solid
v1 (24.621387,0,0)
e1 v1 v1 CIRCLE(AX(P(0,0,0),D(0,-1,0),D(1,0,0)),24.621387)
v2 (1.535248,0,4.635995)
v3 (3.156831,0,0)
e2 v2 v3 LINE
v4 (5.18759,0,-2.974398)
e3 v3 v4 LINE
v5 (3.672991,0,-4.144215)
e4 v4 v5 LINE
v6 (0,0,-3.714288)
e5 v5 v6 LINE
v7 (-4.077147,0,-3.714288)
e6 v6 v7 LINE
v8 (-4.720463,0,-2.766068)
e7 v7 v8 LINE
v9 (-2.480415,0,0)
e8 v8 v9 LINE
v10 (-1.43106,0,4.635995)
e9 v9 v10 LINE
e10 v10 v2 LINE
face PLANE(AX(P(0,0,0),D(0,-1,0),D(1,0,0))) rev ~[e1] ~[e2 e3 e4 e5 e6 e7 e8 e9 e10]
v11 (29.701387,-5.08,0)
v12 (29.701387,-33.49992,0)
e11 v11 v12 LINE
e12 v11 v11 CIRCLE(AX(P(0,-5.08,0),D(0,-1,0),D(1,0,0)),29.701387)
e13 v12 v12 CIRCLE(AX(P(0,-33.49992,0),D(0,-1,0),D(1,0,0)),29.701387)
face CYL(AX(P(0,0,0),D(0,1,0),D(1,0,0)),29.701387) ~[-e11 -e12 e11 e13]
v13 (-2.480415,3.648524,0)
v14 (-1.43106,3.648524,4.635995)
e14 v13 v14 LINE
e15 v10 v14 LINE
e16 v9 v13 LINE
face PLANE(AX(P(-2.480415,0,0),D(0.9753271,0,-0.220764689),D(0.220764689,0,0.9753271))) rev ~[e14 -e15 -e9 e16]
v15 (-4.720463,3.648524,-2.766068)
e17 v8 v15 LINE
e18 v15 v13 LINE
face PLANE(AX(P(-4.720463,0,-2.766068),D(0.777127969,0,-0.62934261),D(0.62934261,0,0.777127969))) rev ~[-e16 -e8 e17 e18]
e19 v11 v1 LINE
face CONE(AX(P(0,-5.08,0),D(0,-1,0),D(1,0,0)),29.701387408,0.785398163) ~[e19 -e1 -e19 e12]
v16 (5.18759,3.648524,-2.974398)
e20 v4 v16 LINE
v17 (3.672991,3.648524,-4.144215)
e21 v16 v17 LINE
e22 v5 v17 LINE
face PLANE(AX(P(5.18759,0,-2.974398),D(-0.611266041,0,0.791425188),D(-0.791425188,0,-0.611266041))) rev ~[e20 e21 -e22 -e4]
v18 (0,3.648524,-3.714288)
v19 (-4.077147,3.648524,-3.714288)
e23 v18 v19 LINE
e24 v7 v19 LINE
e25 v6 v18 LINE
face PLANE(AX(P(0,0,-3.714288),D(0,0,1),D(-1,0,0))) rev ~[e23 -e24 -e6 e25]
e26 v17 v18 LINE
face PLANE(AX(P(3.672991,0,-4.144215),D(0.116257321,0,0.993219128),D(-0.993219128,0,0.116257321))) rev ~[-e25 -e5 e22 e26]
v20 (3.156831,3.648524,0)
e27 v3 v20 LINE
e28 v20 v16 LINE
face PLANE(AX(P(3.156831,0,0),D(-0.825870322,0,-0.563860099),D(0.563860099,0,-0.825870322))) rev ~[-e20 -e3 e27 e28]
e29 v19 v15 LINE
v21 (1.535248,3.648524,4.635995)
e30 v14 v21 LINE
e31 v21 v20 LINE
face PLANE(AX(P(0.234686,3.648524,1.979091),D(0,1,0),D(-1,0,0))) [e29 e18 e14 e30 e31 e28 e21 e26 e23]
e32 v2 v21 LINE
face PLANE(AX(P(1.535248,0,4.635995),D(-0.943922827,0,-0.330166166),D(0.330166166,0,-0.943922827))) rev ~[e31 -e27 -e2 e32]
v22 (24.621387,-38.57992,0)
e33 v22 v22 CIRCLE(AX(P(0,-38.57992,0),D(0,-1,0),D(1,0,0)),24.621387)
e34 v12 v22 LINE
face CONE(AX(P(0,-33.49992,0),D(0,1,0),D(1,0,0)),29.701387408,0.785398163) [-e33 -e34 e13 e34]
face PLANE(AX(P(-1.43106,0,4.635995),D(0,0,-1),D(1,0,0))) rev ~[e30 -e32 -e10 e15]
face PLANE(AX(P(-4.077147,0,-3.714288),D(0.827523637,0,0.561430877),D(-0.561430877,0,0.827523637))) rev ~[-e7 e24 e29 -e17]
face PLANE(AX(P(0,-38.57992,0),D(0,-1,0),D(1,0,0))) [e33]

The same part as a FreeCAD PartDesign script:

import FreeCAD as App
import Part
import Sketcher

V = App.Vector
Q = App.Units.Quantity

doc = App.newDocument("Part")
params = doc.addObject("Spreadsheet::Sheet", "Params")
for row, (alias, value) in enumerate([
    ("pad1_length", "38.57992 mm"),
    ("chamfer_size", "0.2 in"),
    ("pad2_length", "28.350525 mm"),
    ("pad3_length", "3.648524 mm"),
], start=1):
    params.set(f"A{row}", alias)
    params.set(f"B{row}", "=" + value)
    params.setAlias(f"B{row}", alias)

body = doc.addObject("PartDesign::Body", "Body")

# Sketch on XZ plane
sketch1 = body.newObject("Sketcher::SketchObject", "Sketch")
sketch1.AttachmentSupport = (doc.getObject("XZ_Plane"), [""])
sketch1.MapMode = "FlatFace"
sketch1.addGeometry(Part.Circle(V(0, 0, 0), V(0, 0, 1), 30), False)
sketch1.addConstraint(Sketcher.Constraint("Coincident", 0, 3, -1, 1))
sketch1.addConstraint(Sketcher.Constraint("Diameter", 0, Q("59.402775 mm")))
pad1 = body.newObject("PartDesign::Pad", "Pad")
pad1.Profile = sketch1
pad1.setExpression("Length", "Params.pad1_length")
doc.recompute()

chamfer = body.newObject("PartDesign::Chamfer", "Chamfer")
chamfer.Base = (pad1, ["Edge1"])
chamfer.UseAllEdges = True
chamfer.setExpression("Size", "Params.chamfer_size")

# Sketch on XZ plane
sketch2 = body.newObject("Sketcher::SketchObject", "Sketch001")
sketch2.AttachmentSupport = (doc.getObject("XZ_Plane"), [""])
sketch2.MapMode = "FlatFace"
sketch2.AttachmentOffset = App.Placement(V(0, 0, 38.57992), App.Rotation())
sketch2.addGeometry(Part.Circle(V(0, 0, 0), V(0, 0, 1), 21), False)
sketch2.addGeometry(Part.Circle(V(0, 0, 0), V(0, 0, 1), 18), False)
sketch2.addConstraint(Sketcher.Constraint("Coincident", 0, 3, -1, 1))
sketch2.addConstraint(Sketcher.Constraint("Coincident", 1, 3, -1, 1))
sketch2.addConstraint(Sketcher.Constraint("Diameter", 1, Q("35.210779 mm")))
sketch2.addConstraint(Sketcher.Constraint("Diameter", 0, Q("41.740063 mm")))
pad2 = body.newObject("PartDesign::Pad", "Pad001")
pad2.Profile = sketch2
pad2.setExpression("Length", "Params.pad2_length")
pad2.Reversed = True

# Sketch on XZ plane
sketch3 = body.newObject("Sketcher::SketchObject", "Sketch002")
sketch3.AttachmentSupport = (doc.getObject("XZ_Plane"), [""])
sketch3.MapMode = "FlatFace"
sketch3.addGeometry(Part.LineSegment(V(-2.5, 0, 0), V(-1.4, 4.6, 0)), False)
sketch3.addGeometry(Part.LineSegment(V(-1.4, 4.6, 0), V(1.5, 4.6, 0)), False)
sketch3.addGeometry(Part.LineSegment(V(1.5, 4.6, 0), V(3.2, 0, 0)), False)
sketch3.addGeometry(Part.LineSegment(V(3.2, 0, 0), V(5.2, -3, 0)), False)
sketch3.addGeometry(Part.LineSegment(V(5.2, -3, 0), V(3.7, -4.1, 0)), False)
sketch3.addGeometry(Part.LineSegment(V(3.7, -4.1, 0), V(0, -3.7, 0)), False)
sketch3.addGeometry(Part.LineSegment(V(0, -3.7, 0), V(-4.1, -3.7, 0)), False)
sketch3.addGeometry(Part.LineSegment(V(-4.1, -3.7, 0), V(-4.7, -2.8, 0)), False)
sketch3.addGeometry(Part.LineSegment(V(-4.7, -2.8, 0), V(-2.5, 0, 0)), False)
sketch3.addConstraint(Sketcher.Constraint("Coincident", 0, 2, 1, 1))
sketch3.addConstraint(Sketcher.Constraint("Coincident", 1, 2, 2, 1))
sketch3.addConstraint(Sketcher.Constraint("Coincident", 2, 2, 3, 1))
sketch3.addConstraint(Sketcher.Constraint("Coincident", 3, 2, 4, 1))
sketch3.addConstraint(Sketcher.Constraint("Coincident", 4, 2, 5, 1))
sketch3.addConstraint(Sketcher.Constraint("Coincident", 5, 2, 6, 1))
sketch3.addConstraint(Sketcher.Constraint("Coincident", 6, 2, 7, 1))
sketch3.addConstraint(Sketcher.Constraint("Coincident", 7, 2, 8, 1))
sketch3.addConstraint(Sketcher.Constraint("Coincident", 8, 2, 0, 1))
sketch3.addConstraint(Sketcher.Constraint("Horizontal", 1))
sketch3.addConstraint(Sketcher.Constraint("Horizontal", 6))
sketch3.addConstraint(Sketcher.Constraint("PointOnObject", 2, 2, -1))
sketch3.addConstraint(Sketcher.Constraint("PointOnObject", 5, 2, -2))
sketch3.addConstraint(Sketcher.Constraint("PointOnObject", 8, 2, -1))
sketch3.addConstraint(Sketcher.Constraint("DistanceX", 1, 1, 1, 2, Q("2.966308 mm")))
sketch3.addConstraint(Sketcher.Constraint("DistanceX", 4, 2, 3, 2, Q("1.514599 mm")))
sketch3.addConstraint(Sketcher.Constraint("Distance", 3, Q("3.601531 mm")))
sketch3.addConstraint(Sketcher.Constraint("Distance", 4, Q("1.913762 mm")))
sketch3.addConstraint(Sketcher.Constraint("Distance", 7, Q("1.145852 mm")))
sketch3.addConstraint(Sketcher.Constraint("DistanceX", 6, 2, 6, 1, Q("4.077147 mm")))
sketch3.addConstraint(Sketcher.Constraint("DistanceX", 0, 2, -1, 1, Q("1.43106 mm")))
sketch3.addConstraint(Sketcher.Constraint("DistanceX", -1, 1, 2, 2, Q("3.156831 mm")))
sketch3.addConstraint(Sketcher.Constraint("DistanceX", -1, 1, 3, 2, Q("5.18759 mm")))
sketch3.addConstraint(Sketcher.Constraint("DistanceY", 7, 2, -1, 1, Q("2.766068 mm")))
sketch3.addConstraint(Sketcher.Constraint("DistanceY", 4, 2, 1, 2, Q("8.78021 mm")))
sketch3.addConstraint(Sketcher.Constraint("DistanceY", 5, 2, 3, 2, Q("0.73989 mm")))
sketch3.addConstraint(Sketcher.Constraint("DistanceX", 7, 2, 8, 2, Q("2.240049 mm")))
pad3 = body.newObject("PartDesign::Pad", "Pad002")
pad3.Profile = sketch3
pad3.setExpression("Length", "Params.pad3_length")
pad3.Reversed = True

doc.recompute()
